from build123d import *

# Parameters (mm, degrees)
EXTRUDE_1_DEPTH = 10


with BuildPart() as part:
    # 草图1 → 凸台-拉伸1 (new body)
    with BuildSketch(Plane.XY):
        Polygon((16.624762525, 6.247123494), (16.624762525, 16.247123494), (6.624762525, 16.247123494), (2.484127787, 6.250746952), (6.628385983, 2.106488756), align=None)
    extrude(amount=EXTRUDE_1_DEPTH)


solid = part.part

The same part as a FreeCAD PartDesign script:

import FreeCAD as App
import Part
import Sketcher
Q = App.Units.Quantity


def add_polygon(sketch, points):
    """Adds a closed chain of lines whose ends are joined by coincident constraints."""
    first, n = sketch.GeometryCount, len(points)
    for a, b in zip(points, points[1:] + points[:1]):
        sketch.addGeometry(Part.LineSegment(App.Vector(*a, 0), App.Vector(*b, 0)), False)
    for i in range(n):
        sketch.addConstraint(Sketcher.Constraint("Coincident", first + i, 2, first + (i + 1) % n, 1))

doc = App.newDocument("Part")
body = doc.addObject("PartDesign::Body", "Body")

sketch1 = body.newObject("Sketcher::SketchObject", "Sketch")
sketch1.AttachmentSupport = (doc.getObject("XY_Plane"), [""])
sketch1.MapMode = "FlatFace"
add_polygon(sketch1, [(17, 6), (17, 16), (7, 16), (2, 6), (7, 2)])
sketch1.addConstraint([
    Sketcher.Constraint("Vertical", 0),
    Sketcher.Constraint("Horizontal", 1),
    Sketcher.Constraint("Equal", 1, 0),
    Sketcher.Constraint("Equal", 2, 4),
    Sketcher.Constraint("DistanceX", 1, 2, 1, 1, 10.0),
    Sketcher.Constraint("Angle", 3, Q("-45 deg")),
    Sketcher.Constraint("Angle", 2, Q("-112.5 deg")),
    Sketcher.Constraint("Distance", 2, 10.82),
    Sketcher.Constraint("DistanceY", -1, 1, 3, 2, 2.106489),
    Sketcher.Constraint("DistanceX", -1, 1, 0, 2, 16.624763),
])
pad1 = body.newObject("PartDesign::Pad", "Pad")
pad1.Profile = sketch1
pad1.Length = 10

doc.recompute()
